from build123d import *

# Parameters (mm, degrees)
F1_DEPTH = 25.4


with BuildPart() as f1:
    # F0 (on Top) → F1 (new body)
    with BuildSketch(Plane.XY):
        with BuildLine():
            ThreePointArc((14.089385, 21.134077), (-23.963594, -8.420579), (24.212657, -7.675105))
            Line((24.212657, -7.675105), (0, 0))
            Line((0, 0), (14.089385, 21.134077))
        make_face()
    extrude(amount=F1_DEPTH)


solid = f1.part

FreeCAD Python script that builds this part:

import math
import FreeCAD as App
import Part
import Sketcher
from FreeCAD import Vector
Q = App.Units.Quantity

doc = App.newDocument("Part")
body = doc.addObject("PartDesign::Body", "Body")

# Sketch on XY plane
sketch1 = body.newObject("Sketcher::SketchObject", "Sketch")
sketch1.AttachmentSupport = (doc.getObject("XY_Plane"), [""])
sketch1.MapMode = "FlatFace"
sketch1.addGeometry([
    Part.ArcOfCircle(Part.Circle(Vector(0, 0, 0), Vector(0, 0, 1), 25), math.radians(56), math.radians(342)),
    Part.LineSegment(Vector(24, -8, 0), Vector(0, 0, 0)),
    Part.LineSegment(Vector(0, 0, 0), Vector(14, 21, 0)),
], False)
sketch1.addConstraint([
    Sketcher.Constraint("Coincident", 0, 2, 1, 1),
    Sketcher.Constraint("Coincident", 1, 2, 2, 1),
    Sketcher.Constraint("Coincident", 2, 2, 0, 1),
    Sketcher.Constraint("Coincident", 0, 3, -1, 1),
    Sketcher.Constraint("Coincident", 1, 2, -1, 1),
    Sketcher.Constraint("Radius", 0, Q("1 in")),
    Sketcher.Constraint("DistanceX", -1, 1, 2, 2, Q("0.5547002 in")),
    Sketcher.Constraint("DistanceX", 2, 2, 0, 2, 10.123272),
])
pad1 = body.newObject("PartDesign::Pad", "Pad")
pad1.Profile = sketch1
pad1.Length = Q("1 in")

doc.recompute()
